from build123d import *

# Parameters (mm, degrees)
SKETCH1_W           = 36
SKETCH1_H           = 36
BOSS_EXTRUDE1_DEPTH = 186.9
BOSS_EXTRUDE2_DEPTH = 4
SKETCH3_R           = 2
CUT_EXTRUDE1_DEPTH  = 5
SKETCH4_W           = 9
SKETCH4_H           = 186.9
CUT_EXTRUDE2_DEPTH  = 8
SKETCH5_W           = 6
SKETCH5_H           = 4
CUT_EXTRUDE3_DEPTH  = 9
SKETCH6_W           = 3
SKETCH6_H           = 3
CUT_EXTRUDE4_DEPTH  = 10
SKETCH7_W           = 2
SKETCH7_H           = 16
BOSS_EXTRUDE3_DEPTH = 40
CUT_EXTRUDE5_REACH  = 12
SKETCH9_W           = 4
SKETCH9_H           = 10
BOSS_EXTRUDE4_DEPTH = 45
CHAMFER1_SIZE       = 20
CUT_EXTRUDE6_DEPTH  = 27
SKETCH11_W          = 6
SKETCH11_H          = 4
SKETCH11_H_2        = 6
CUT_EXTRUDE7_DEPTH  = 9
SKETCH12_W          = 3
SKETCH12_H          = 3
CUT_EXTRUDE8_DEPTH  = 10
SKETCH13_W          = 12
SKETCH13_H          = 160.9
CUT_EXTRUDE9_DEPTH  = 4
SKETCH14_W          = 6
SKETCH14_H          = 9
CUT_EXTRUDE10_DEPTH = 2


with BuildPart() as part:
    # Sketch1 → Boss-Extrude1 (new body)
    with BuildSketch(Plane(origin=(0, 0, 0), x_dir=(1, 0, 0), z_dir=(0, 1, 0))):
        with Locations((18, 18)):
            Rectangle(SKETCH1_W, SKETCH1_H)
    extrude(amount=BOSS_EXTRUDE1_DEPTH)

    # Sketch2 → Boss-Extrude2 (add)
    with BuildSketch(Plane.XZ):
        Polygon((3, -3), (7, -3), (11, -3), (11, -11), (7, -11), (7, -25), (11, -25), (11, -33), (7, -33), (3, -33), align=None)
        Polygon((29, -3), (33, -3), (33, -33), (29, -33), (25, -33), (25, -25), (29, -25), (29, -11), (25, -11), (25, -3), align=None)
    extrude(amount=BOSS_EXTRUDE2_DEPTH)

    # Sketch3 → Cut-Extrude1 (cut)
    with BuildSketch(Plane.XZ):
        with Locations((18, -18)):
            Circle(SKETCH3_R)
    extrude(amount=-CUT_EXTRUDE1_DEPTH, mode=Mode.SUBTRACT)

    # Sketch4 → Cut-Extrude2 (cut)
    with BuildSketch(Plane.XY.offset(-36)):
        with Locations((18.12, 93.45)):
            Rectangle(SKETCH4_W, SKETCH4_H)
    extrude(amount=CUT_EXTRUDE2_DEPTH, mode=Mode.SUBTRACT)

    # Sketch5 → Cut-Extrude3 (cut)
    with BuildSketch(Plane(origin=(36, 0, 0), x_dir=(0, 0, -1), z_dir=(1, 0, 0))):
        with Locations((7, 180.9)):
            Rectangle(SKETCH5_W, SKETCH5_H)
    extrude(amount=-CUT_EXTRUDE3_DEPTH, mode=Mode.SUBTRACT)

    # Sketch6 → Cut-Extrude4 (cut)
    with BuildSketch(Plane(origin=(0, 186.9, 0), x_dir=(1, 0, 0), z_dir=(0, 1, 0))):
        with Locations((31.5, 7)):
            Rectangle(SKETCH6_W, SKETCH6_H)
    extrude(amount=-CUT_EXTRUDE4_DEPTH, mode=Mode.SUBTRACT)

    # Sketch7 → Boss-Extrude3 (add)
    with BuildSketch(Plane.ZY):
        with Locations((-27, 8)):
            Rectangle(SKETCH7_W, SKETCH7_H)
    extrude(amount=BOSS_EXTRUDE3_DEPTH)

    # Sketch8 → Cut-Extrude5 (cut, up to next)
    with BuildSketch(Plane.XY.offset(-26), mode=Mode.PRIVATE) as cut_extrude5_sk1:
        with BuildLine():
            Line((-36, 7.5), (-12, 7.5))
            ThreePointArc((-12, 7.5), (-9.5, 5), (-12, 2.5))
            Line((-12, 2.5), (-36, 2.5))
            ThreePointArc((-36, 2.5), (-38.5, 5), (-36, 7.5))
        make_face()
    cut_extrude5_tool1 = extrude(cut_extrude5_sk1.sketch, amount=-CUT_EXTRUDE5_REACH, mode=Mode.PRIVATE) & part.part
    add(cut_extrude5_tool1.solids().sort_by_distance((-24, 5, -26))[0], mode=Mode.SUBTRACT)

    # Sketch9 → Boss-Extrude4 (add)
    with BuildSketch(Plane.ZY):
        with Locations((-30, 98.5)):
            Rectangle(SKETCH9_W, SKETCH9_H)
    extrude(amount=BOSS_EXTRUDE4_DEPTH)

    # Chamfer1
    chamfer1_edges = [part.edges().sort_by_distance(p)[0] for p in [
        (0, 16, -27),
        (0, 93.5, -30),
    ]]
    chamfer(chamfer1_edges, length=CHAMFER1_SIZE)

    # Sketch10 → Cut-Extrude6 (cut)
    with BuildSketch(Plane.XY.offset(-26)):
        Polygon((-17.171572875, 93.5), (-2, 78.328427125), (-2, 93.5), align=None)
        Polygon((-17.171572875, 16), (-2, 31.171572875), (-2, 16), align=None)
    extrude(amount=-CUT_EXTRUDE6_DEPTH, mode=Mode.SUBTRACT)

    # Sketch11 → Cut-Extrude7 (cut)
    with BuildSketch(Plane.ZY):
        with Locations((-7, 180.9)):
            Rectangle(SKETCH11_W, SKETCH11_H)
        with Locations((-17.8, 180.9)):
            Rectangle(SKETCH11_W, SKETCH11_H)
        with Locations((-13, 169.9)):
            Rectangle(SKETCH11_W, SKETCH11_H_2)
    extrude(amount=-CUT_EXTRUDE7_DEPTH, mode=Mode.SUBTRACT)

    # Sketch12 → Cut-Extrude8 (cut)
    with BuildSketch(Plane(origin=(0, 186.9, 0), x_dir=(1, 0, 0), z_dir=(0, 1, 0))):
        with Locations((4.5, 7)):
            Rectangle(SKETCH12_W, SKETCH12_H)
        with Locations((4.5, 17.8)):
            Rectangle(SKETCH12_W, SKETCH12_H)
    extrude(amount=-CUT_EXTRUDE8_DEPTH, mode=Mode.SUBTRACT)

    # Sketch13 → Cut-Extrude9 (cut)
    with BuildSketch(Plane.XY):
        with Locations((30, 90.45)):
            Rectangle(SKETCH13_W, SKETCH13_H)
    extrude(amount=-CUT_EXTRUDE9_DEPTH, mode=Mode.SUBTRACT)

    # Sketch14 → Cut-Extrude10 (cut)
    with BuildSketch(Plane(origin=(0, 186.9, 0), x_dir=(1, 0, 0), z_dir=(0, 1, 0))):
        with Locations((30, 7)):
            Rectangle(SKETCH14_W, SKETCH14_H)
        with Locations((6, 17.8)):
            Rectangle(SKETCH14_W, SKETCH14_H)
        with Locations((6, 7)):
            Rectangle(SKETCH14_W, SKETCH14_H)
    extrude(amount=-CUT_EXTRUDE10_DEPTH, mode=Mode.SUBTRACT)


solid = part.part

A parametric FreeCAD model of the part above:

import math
import FreeCAD as App
import Part
import Sketcher
Q = App.Units.Quantity


def edges_at(feature, points):
    """Names of the edges that pass closest to the given points."""
    edges = feature.Shape.Edges
    near = lambda p: min(range(len(edges)), key=lambda i: edges[i].distToShape(Part.Vertex(*p))[0])
    return sorted({f"Edge{near(p) + 1}" for p in points})


def add_polygon(sketch, points):
    """Adds a closed chain of lines whose ends are joined by coincident constraints."""
    first, n = sketch.GeometryCount, len(points)
    for a, b in zip(points, points[1:] + points[:1]):
        sketch.addGeometry(Part.LineSegment(App.Vector(*a, 0), App.Vector(*b, 0)), False)
    for i in range(n):
        sketch.addConstraint(Sketcher.Constraint("Coincident", first + i, 2, first + (i + 1) % n, 1))

doc = App.newDocument("Part")
params = doc.addObject("Spreadsheet::Sheet", "Params")
for row, (alias, value) in enumerate([
    ("sketch1_width", "36 mm"),
    ("pad1_length", "186.9 mm"),
    ("sketch2_width", "8 mm"),
    ("sketch2_width2", "4 mm"),
    ("sketch2_height", "30 mm"),
    ("pad2_length", "4 mm"),
    ("sketch3_diameter", "4 mm"),
    ("pocket1_length", "5 mm"),
    ("sketch4_width", "9 mm"),
    ("sketch4_height", "186.9 mm"),
    ("pocket2_length", "8 mm"),
    ("sketch5_width", "4 mm"),
    ("sketch5_height", "6 mm"),
    ("pocket3_length", "9 mm"),
    ("sketch6_width", "3 mm"),
    ("pocket4_length", "10 mm"),
    ("sketch7_width", "16 mm"),
    ("sketch7_height", "2 mm"),
    ("pad3_length", "40 mm"),
    ("sketch8_radius", "2.5 mm"),
    ("sketch8_width", "24 mm"),
    ("sketch9_width", "10 mm"),
    ("sketch9_height", "4 mm"),
    ("pad4_length", "45 mm"),
    ("chamfer_size", "20 mm"),
    ("pocket6_length", "27 mm"),
    ("sketch11_width", "4 mm"),
    ("sketch11_width2", "6 mm"),
    ("pocket7_length", "9 mm"),
    ("sketch12_width", "3 mm"),
    ("pocket8_length", "10 mm"),
    ("sketch13_width", "12 mm"),
    ("sketch13_height", "160.9 mm"),
    ("pocket9_length", "4 mm"),
    ("sketch14_width", "6 mm"),
    ("sketch14_height", "9 mm"),
    ("pocket10_length", "2 mm"),
], start=1):
    params.set(f"A{row}", alias)
    params.set(f"B{row}", "=" + value)
    params.setAlias(f"B{row}", alias)

body = doc.addObject("PartDesign::Body", "Body")

# Sketch on XZ plane
sketch1 = body.newObject("Sketcher::SketchObject", "Sketch")
sketch1.AttachmentSupport = (doc.getObject("XZ_Plane"), [""])
sketch1.MapMode = "FlatFace"
add_polygon(sketch1, [(0, -36), (0, 0), (36, 0), (36, -36)])  # lines 0-3
sketch1.addConstraint(Sketcher.Constraint("Vertical", 0))
sketch1.addConstraint(Sketcher.Constraint("Horizontal", 1))
sketch1.addConstraint(Sketcher.Constraint("Vertical", 2))
sketch1.addConstraint(Sketcher.Constraint("Horizontal", 3))
sketch1.addConstraint(Sketcher.Constraint("Coincident", 0, 2, -1, 1))
sketch1.addConstraint(Sketcher.Constraint("Equal", 3, 0))
sketch1.addConstraint(Sketcher.Constraint("DistanceX", 1, 1, 1, 2, Q("36 mm")))
sketch1.setExpression("Constraints[10]", "Params.sketch1_width")
pad1 = body.newObject("PartDesign::Pad", "Pad")
pad1.Profile = sketch1
pad1.setExpression("Length", "Params.pad1_length")
pad1.Reversed = True

# Sketch on XZ plane
sketch2 = body.newObject("Sketcher::SketchObject", "Sketch001")
sketch2.AttachmentSupport = (doc.getObject("XZ_Plane"), [""])
sketch2.MapMode = "FlatFace"
add_polygon(sketch2, [(11, -3), (3, -3), (3, -33), (11, -33), (11, -25), (7, -25), (7, -11), (11, -11)])  # lines 0-7
add_polygon(sketch2, [(33, -3), (25, -3), (25, -11), (29, -11), (29, -25), (25, -25), (25, -33), (33, -33)])  # lines 8-15
sketch2.addConstraint(Sketcher.Constraint("Horizontal", 0))
sketch2.addConstraint(Sketcher.Constraint("Vertical", 1))
sketch2.addConstraint(Sketcher.Constraint("Horizontal", 2))
sketch2.addConstraint(Sketcher.Constraint("Vertical", 3))
sketch2.addConstraint(Sketcher.Constraint("Horizontal", 4))
sketch2.addConstraint(Sketcher.Constraint("Vertical", 5))
sketch2.addConstraint(Sketcher.Constraint("Horizontal", 6))
sketch2.addConstraint(Sketcher.Constraint("Vertical", 7))
sketch2.addConstraint(Sketcher.Constraint("Horizontal", 8))
sketch2.addConstraint(Sketcher.Constraint("Vertical", 9))
sketch2.addConstraint(Sketcher.Constraint("Horizontal", 10))
sketch2.addConstraint(Sketcher.Constraint("Vertical", 11))
sketch2.addConstraint(Sketcher.Constraint("Horizontal", 12))
sketch2.addConstraint(Sketcher.Constraint("Vertical", 13))
sketch2.addConstraint(Sketcher.Constraint("Horizontal", 14))
sketch2.addConstraint(Sketcher.Constraint("Vertical", 15))
sketch2.addConstraint(Sketcher.Constraint("Horizontal", 7, 2, 8, 2))
sketch2.addConstraint(Sketcher.Constraint("Horizontal", 6, 2, 9, 2))
sketch2.addConstraint(Sketcher.Constraint("Horizontal", 4, 2, 11, 2))
sketch2.addConstraint(Sketcher.Constraint("Horizontal", 2, 2, 13, 2))
sketch2.addConstraint(Sketcher.Constraint("Vertical", 3, 2, 6, 2))
sketch2.addConstraint(Sketcher.Constraint("Vertical", 9, 2, 12, 2))
sketch2.addConstraint(Sketcher.Constraint("Equal", 2, 8))
sketch2.addConstraint(Sketcher.Constraint("Equal", 6, 10))
sketch2.addConstraint(Sketcher.Constraint("Equal", 14, 3))
sketch2.addConstraint(Sketcher.Constraint("Equal", 3, 7))
sketch2.addConstraint(Sketcher.Constraint("DistanceX", 0, 2, 0, 1, Q("8 mm")))
sketch2.addConstraint(Sketcher.Constraint("DistanceX", 4, 2, 4, 1, Q("4 mm")))
sketch2.addConstraint(Sketcher.Constraint("DistanceY", 1, 2, 1, 1, Q("30 mm")))
sketch2.addConstraint(Sketcher.Constraint("DistanceX", -1, 1, 0, 2, Q("3 mm")))
sketch2.addConstraint(Sketcher.Constraint("DistanceY", 0, 2, -1, 1, Q("3 mm")))
sketch2.addConstraint(Sketcher.Constraint("DistanceX", -1, 1, 8, 2, Q("25 mm")))
sketch2.setExpression("Constraints[42]", "Params.sketch2_width")
sketch2.setExpression("Constraints[43]", "Params.sketch2_width2")
sketch2.setExpression("Constraints[44]", "Params.sketch2_height")
pad2 = body.newObject("PartDesign::Pad", "Pad001")
pad2.Profile = sketch2
pad2.setExpression("Length", "Params.pad2_length")

# Sketch on XZ plane
sketch3 = body.newObject("Sketcher::SketchObject", "Sketch002")
sketch3.AttachmentSupport = (doc.getObject("XZ_Plane"), [""])
sketch3.MapMode = "FlatFace"
sketch3.addGeometry(Part.Circle(App.Vector(18, -18, 0), App.Vector(0, 0, 1), 2), False)
sketch3.addConstraint(Sketcher.Constraint("Diameter", 0, Q("4 mm")))
sketch3.addConstraint(Sketcher.Constraint("DistanceX", -1, 1, 0, 3, Q("18 mm")))
sketch3.addConstraint(Sketcher.Constraint("DistanceY", 0, 3, -1, 1, Q("18 mm")))
sketch3.setExpression("Constraints[0]", "Params.sketch3_diameter")
pocket1 = body.newObject("PartDesign::Pocket", "Pocket")
pocket1.Profile = sketch3
pocket1.setExpression("Length", "Params.pocket1_length")

# Sketch on XY plane
sketch4 = body.newObject("Sketcher::SketchObject", "Sketch003")
sketch4.AttachmentSupport = (doc.getObject("XY_Plane"), [""])
sketch4.MapMode = "FlatFace"
sketch4.AttachmentOffset = App.Placement(App.Vector(0, 0, -36), App.Rotation())
add_polygon(sketch4, [(14, 187), (14, 0), (23, 0), (23, 187)])  # lines 0-3
sketch4.addConstraint(Sketcher.Constraint("Vertical", 0))
sketch4.addConstraint(Sketcher.Constraint("Horizontal", 1))
sketch4.addConstraint(Sketcher.Constraint("Vertical", 2))
sketch4.addConstraint(Sketcher.Constraint("Horizontal", 3))
sketch4.addConstraint(Sketcher.Constraint("PointOnObject", 0, 2, -1))
sketch4.addConstraint(Sketcher.Constraint("DistanceX", 1, 1, 1, 2, Q("9 mm")))
sketch4.addConstraint(Sketcher.Constraint("DistanceY", 0, 2, 0, 1, Q("186.9 mm")))
sketch4.addConstraint(Sketcher.Constraint("DistanceX", -1, 1, 0, 2, Q("13.62 mm")))
sketch4.setExpression("Constraints[9]", "Params.sketch4_width")
sketch4.setExpression("Constraints[10]", "Params.sketch4_height")
pocket2 = body.newObject("PartDesign::Pocket", "Pocket001")
pocket2.Profile = sketch4
pocket2.setExpression("Length", "Params.pocket2_length")
pocket2.Reversed = True

# Sketch on YZ plane
sketch5 = body.newObject("Sketcher::SketchObject", "Sketch004")
sketch5.AttachmentSupport = (doc.getObject("YZ_Plane"), [""])
sketch5.MapMode = "FlatFace"
sketch5.AttachmentOffset = App.Placement(App.Vector(0, 0, 36), App.Rotation())
add_polygon(sketch5, [(182.9, -4), (178.9, -4), (178.9, -10), (182.9, -10)])  # lines 0-3
sketch5.addConstraint(Sketcher.Constraint("Horizontal", 0))
sketch5.addConstraint(Sketcher.Constraint("Vertical", 1))
sketch5.addConstraint(Sketcher.Constraint("Horizontal", 2))
sketch5.addConstraint(Sketcher.Constraint("Vertical", 3))
sketch5.addConstraint(Sketcher.Constraint("DistanceX", 0, 2, 0, 1, Q("4 mm")))
sketch5.addConstraint(Sketcher.Constraint("DistanceY", 1, 2, 1, 1, Q("6 mm")))
sketch5.addConstraint(Sketcher.Constraint("DistanceY", 0, 2, -1, 1, Q("4 mm")))
sketch5.addConstraint(Sketcher.Constraint("DistanceX", -1, 1, 0, 2, Q("178.9 mm")))
sketch5.setExpression("Constraints[8]", "Params.sketch5_width")
sketch5.setExpression("Constraints[9]", "Params.sketch5_height")
pocket3 = body.newObject("PartDesign::Pocket", "Pocket002")
pocket3.Profile = sketch5
pocket3.setExpression("Length", "Params.pocket3_length")

# Sketch on XZ plane
sketch6 = body.newObject("Sketcher::SketchObject", "Sketch005")
sketch6.AttachmentSupport = (doc.getObject("XZ_Plane"), [""])
sketch6.MapMode = "FlatFace"
sketch6.AttachmentOffset = App.Placement(App.Vector(0, 0, -186.9), App.Rotation())
add_polygon(sketch6, [(30, -8.5), (30, -5.5), (33, -5.5), (33, -8.5)])  # lines 0-3
sketch6.addConstraint(Sketcher.Constraint("Vertical", 0))
sketch6.addConstraint(Sketcher.Constraint("Horizontal", 1))
sketch6.addConstraint(Sketcher.Constraint("Vertical", 2))
sketch6.addConstraint(Sketcher.Constraint("Horizontal", 3))
sketch6.addConstraint(Sketcher.Constraint("Equal", 3, 0))
sketch6.addConstraint(Sketcher.Constraint("DistanceX", 1, 1, 1, 2, Q("3 mm")))
sketch6.addConstraint(Sketcher.Constraint("DistanceX", -1, 1, 0, 2, Q("30 mm")))
sketch6.addConstraint(Sketcher.Constraint("DistanceY", 0, 2, -1, 1, Q("5.5 mm")))
sketch6.setExpression("Constraints[9]", "Params.sketch6_width")
pocket4 = body.newObject("PartDesign::Pocket", "Pocket003")
pocket4.Profile = sketch6
pocket4.setExpression("Length", "Params.pocket4_length")
pocket4.Reversed = True

# Sketch on YZ plane
sketch7 = body.newObject("Sketcher::SketchObject", "Sketch006")
sketch7.AttachmentSupport = (doc.getObject("YZ_Plane"), [""])
sketch7.MapMode = "FlatFace"
add_polygon(sketch7, [(16, -28), (0, -28), (0, -26), (16, -26)])  # lines 0-3
sketch7.addConstraint(Sketcher.Constraint("Horizontal", 0))
sketch7.addConstraint(Sketcher.Constraint("Vertical", 1))
sketch7.addConstraint(Sketcher.Constraint("Horizontal", 2))
sketch7.addConstraint(Sketcher.Constraint("Vertical", 3))
sketch7.addConstraint(Sketcher.Constraint("PointOnObject", 0, 2, -2))
sketch7.addConstraint(Sketcher.Constraint("DistanceX", 0, 2, 0, 1, Q("16 mm")))
sketch7.addConstraint(Sketcher.Constraint("DistanceY", 1, 1, 1, 2, Q("2 mm")))
sketch7.addConstraint(Sketcher.Constraint("DistanceY", 0, 2, -1, 1, Q("28 mm")))
sketch7.setExpression("Constraints[9]", "Params.sketch7_width")
sketch7.setExpression("Constraints[10]", "Params.sketch7_height")
pad3 = body.newObject("PartDesign::Pad", "Pad002")
pad3.Profile = sketch7
pad3.setExpression("Length", "Params.pad3_length")
pad3.Reversed = True

# Sketch on XY plane
sketch8 = body.newObject("Sketcher::SketchObject", "Sketch007")
sketch8.AttachmentSupport = (doc.getObject("XY_Plane"), [""])
sketch8.MapMode = "FlatFace"
sketch8.AttachmentOffset = App.Placement(App.Vector(0, 0, -26), App.Rotation())
sketch8.addGeometry(Part.LineSegment(App.Vector(-12, 7.5, 0), App.Vector(-36, 7.5, 0)), False)
sketch8.addGeometry(Part.ArcOfCircle(Part.Circle(App.Vector(-36, 5, 0), App.Vector(0, 0, 1), 2.5), math.radians(90), math.radians(270)), False)
sketch8.addGeometry(Part.LineSegment(App.Vector(-36, 2.5, 0), App.Vector(-12, 2.5, 0)), False)
sketch8.addGeometry(Part.ArcOfCircle(Part.Circle(App.Vector(-12, 5, 0), App.Vector(0, 0, 1), 2.5), math.radians(-90), math.radians(90)), False)
sketch8.addConstraint(Sketcher.Constraint("Tangent", 0, 2, 1, 1))
sketch8.addConstraint(Sketcher.Constraint("Tangent", 1, 2, 2, 1))
sketch8.addConstraint(Sketcher.Constraint("Tangent", 2, 2, 3, 1))
sketch8.addConstraint(Sketcher.Constraint("Tangent", 3, 2, 0, 1))
sketch8.addConstraint(Sketcher.Constraint("Horizontal", 0))
sketch8.addConstraint(Sketcher.Constraint("Horizontal", 2))
sketch8.addConstraint(Sketcher.Constraint("Radius", 1, Q("2.5 mm")))
sketch8.addConstraint(Sketcher.Constraint("DistanceX", 0, 2, 0, 1, Q("24 mm")))
sketch8.addConstraint(Sketcher.Constraint("DistanceX", 1, 3, -1, 1, Q("36 mm")))
sketch8.addConstraint(Sketcher.Constraint("DistanceY", -1, 1, 1, 3, Q("5 mm")))
sketch8.setExpression("Constraints[6]", "Params.sketch8_radius")
sketch8.setExpression("Constraints[7]", "Params.sketch8_width")
pocket5 = body.newObject("PartDesign::Pocket", "Pocket004")
pocket5.Profile = sketch8
pocket5.Type = "UpToFirst"

# Sketch on YZ plane
sketch9 = body.newObject("Sketcher::SketchObject", "Sketch008")
sketch9.AttachmentSupport = (doc.getObject("YZ_Plane"), [""])
sketch9.MapMode = "FlatFace"
add_polygon(sketch9, [(103.5, -32), (93.5, -32), (93.5, -28), (103.5, -28)])  # lines 0-3
sketch9.addConstraint(Sketcher.Constraint("Horizontal", 0))
sketch9.addConstraint(Sketcher.Constraint("Vertical", 1))
sketch9.addConstraint(Sketcher.Constraint("Horizontal", 2))
sketch9.addConstraint(Sketcher.Constraint("Vertical", 3))
sketch9.addConstraint(Sketcher.Constraint("DistanceX", 0, 2, 0, 1, Q("10 mm")))
sketch9.addConstraint(Sketcher.Constraint("DistanceY", 1, 1, 1, 2, Q("4 mm")))
sketch9.addConstraint(Sketcher.Constraint("DistanceY", 0, 2, -1, 1, Q("32 mm")))
sketch9.addConstraint(Sketcher.Constraint("DistanceX", -1, 1, 0, 2, Q("93.5 mm")))
sketch9.setExpression("Constraints[8]", "Params.sketch9_width")
sketch9.setExpression("Constraints[9]", "Params.sketch9_height")
pad4 = body.newObject("PartDesign::Pad", "Pad003")
pad4.Profile = sketch9
pad4.setExpression("Length", "Params.pad4_length")
pad4.Reversed = True
doc.recompute()

chamfer = body.newObject("PartDesign::Chamfer", "Chamfer")
chamfer.Base = (pad4, edges_at(pad4, [(0, 16, -27), (0, 93.5, -30)]))
chamfer.setExpression("Size", "Params.chamfer_size")

# Sketch on XY plane
sketch10 = body.newObject("Sketcher::SketchObject", "Sketch009")
sketch10.AttachmentSupport = (doc.getObject("XY_Plane"), [""])
sketch10.MapMode = "FlatFace"
sketch10.AttachmentOffset = App.Placement(App.Vector(0, 0, -26), App.Rotation())
add_polygon(sketch10, [(-17, 94), (-2, 78), (-2, 94)])  # lines 0-2
add_polygon(sketch10, [(-2, 31), (-17, 16), (-2, 16)])  # lines 3-5
sketch10.addConstraint(Sketcher.Constraint("Vertical", 1))
sketch10.addConstraint(Sketcher.Constraint("Horizontal", 2))
sketch10.addConstraint(Sketcher.Constraint("Horizontal", 4))
sketch10.addConstraint(Sketcher.Constraint("Vertical", 5))
sketch10.addConstraint(Sketcher.Constraint("Perpendicular", 0, 3))
sketch10.addConstraint(Sketcher.Constraint("Vertical", 2, 2, 3, 2))
sketch10.addConstraint(Sketcher.Constraint("Vertical", 1, 2, 4, 2))
sketch10.addConstraint(Sketcher.Constraint("Equal", 4, 1))
sketch10.addConstraint(Sketcher.Constraint("DistanceX", 0, 2, -1, 1, Q("2 mm")))
sketch10.addConstraint(Sketcher.Constraint("DistanceY", -1, 1, 3, 2, Q("16 mm")))
sketch10.addConstraint(Sketcher.Constraint("DistanceY", -1, 1, 1, 2, Q("93.5 mm")))
sketch10.addConstraint(Sketcher.Constraint("DistanceX", 2, 2, 2, 1, Q("15.171573 mm")))
pocket6 = body.newObject("PartDesign::Pocket", "Pocket005")
pocket6.Profile = sketch10
pocket6.setExpression("Length", "Params.pocket6_length")

# Sketch on YZ plane
sketch11 = body.newObject("Sketcher::SketchObject", "Sketch010")
sketch11.AttachmentSupport = (doc.getObject("YZ_Plane"), [""])
sketch11.MapMode = "FlatFace"
add_polygon(sketch11, [(182.9, -10), (178.9, -10), (178.9, -4), (182.9, -4)])  # lines 0-3
add_polygon(sketch11, [(182.9, -20.8), (178.9, -20.8), (178.9, -14.8), (182.9, -14.8)])  # lines 4-7
add_polygon(sketch11, [(172.9, -16), (166.9, -16), (166.9, -10), (172.9, -10)])  # lines 8-11
sketch11.addConstraint(Sketcher.Constraint("Horizontal", 0))
sketch11.addConstraint(Sketcher.Constraint("Vertical", 1))
sketch11.addConstraint(Sketcher.Constraint("Horizontal", 2))
sketch11.addConstraint(Sketcher.Constraint("Vertical", 3))
sketch11.addConstraint(Sketcher.Constraint("Horizontal", 4))
sketch11.addConstraint(Sketcher.Constraint("Vertical", 5))
sketch11.addConstraint(Sketcher.Constraint("Horizontal", 6))
sketch11.addConstraint(Sketcher.Constraint("Vertical", 7))
sketch11.addConstraint(Sketcher.Constraint("Horizontal", 8))
sketch11.addConstraint(Sketcher.Constraint("Vertical", 9))
sketch11.addConstraint(Sketcher.Constraint("Horizontal", 10))
sketch11.addConstraint(Sketcher.Constraint("Vertical", 11))
sketch11.addConstraint(Sketcher.Constraint("Horizontal", 3, 2, 9, 2))
sketch11.addConstraint(Sketcher.Constraint("Vertical", 1, 2, 4, 2))
sketch11.addConstraint(Sketcher.Constraint("Vertical", 3, 2, 6, 2))
sketch11.addConstraint(Sketcher.Constraint("Equal", 10, 1))
sketch11.addConstraint(Sketcher.Constraint("Equal", 3, 5))
sketch11.addConstraint(Sketcher.Constraint("Equal", 7, 9))
sketch11.addConstraint(Sketcher.Constraint("DistanceX", 0, 2, 0, 1, Q("4 mm")))
sketch11.addConstraint(Sketcher.Constraint("DistanceX", 8, 2, 8, 1, Q("6 mm")))
sketch11.addConstraint(Sketcher.Constraint("DistanceY", 0, 2, -1, 1, Q("10 mm")))
sketch11.addConstraint(Sketcher.Constraint("DistanceX", 8, 2, 5, 2, Q("12 mm")))
sketch11.addConstraint(Sketcher.Constraint("DistanceX", -1, 1, 0, 2, Q("178.9 mm")))
sketch11.addConstraint(Sketcher.Constraint("DistanceY", 4, 2, -1, 1, Q("20.8 mm")))
sketch11.setExpression("Constraints[30]", "Params.sketch11_width")
sketch11.setExpression("Constraints[31]", "Params.sketch11_width2")
pocket7 = body.newObject("PartDesign::Pocket", "Pocket006")
pocket7.Profile = sketch11
pocket7.setExpression("Length", "Params.pocket7_length")
pocket7.Reversed = True

# Sketch on XZ plane
sketch12 = body.newObject("Sketcher::SketchObject", "Sketch011")
sketch12.AttachmentSupport = (doc.getObject("XZ_Plane"), [""])
sketch12.MapMode = "FlatFace"
sketch12.AttachmentOffset = App.Placement(App.Vector(0, 0, -186.9), App.Rotation())
add_polygon(sketch12, [(3, -8.5), (3, -5.5), (6, -5.5), (6, -8.5)])  # lines 0-3
add_polygon(sketch12, [(3, -19.3), (3, -16.3), (6, -16.3), (6, -19.3)])  # lines 4-7
sketch12.addConstraint(Sketcher.Constraint("Vertical", 0))
sketch12.addConstraint(Sketcher.Constraint("Horizontal", 1))
sketch12.addConstraint(Sketcher.Constraint("Vertical", 2))
sketch12.addConstraint(Sketcher.Constraint("Horizontal", 3))
sketch12.addConstraint(Sketcher.Constraint("Vertical", 4))
sketch12.addConstraint(Sketcher.Constraint("Horizontal", 5))
sketch12.addConstraint(Sketcher.Constraint("Vertical", 6))
sketch12.addConstraint(Sketcher.Constraint("Horizontal", 7))
sketch12.addConstraint(Sketcher.Constraint("Vertical", 3, 2, 4, 2))
sketch12.addConstraint(Sketcher.Constraint("Vertical", 2, 2, 5, 2))
sketch12.addConstraint(Sketcher.Constraint("Equal", 7, 0))
sketch12.addConstraint(Sketcher.Constraint("Equal", 2, 4))
sketch12.addConstraint(Sketcher.Constraint("DistanceX", 1, 1, 1, 2, Q("3 mm")))
sketch12.addConstraint(Sketcher.Constraint("DistanceX", -1, 1, 0, 2, Q("3 mm")))
sketch12.addConstraint(Sketcher.Constraint("DistanceY", 0, 2, -1, 1, Q("5.5 mm")))
sketch12.addConstraint(Sketcher.Constraint("DistanceY", 4, 2, -1, 1, Q("16.3 mm")))
sketch12.setExpression("Constraints[20]", "Params.sketch12_width")
pocket8 = body.newObject("PartDesign::Pocket", "Pocket007")
pocket8.Profile = sketch12
pocket8.setExpression("Length", "Params.pocket8_length")
pocket8.Reversed = True

# Sketch on XY plane
sketch13 = body.newObject("Sketcher::SketchObject", "Sketch012")
sketch13.AttachmentSupport = (doc.getObject("XY_Plane"), [""])
sketch13.MapMode = "FlatFace"
add_polygon(sketch13, [(24, 171), (24, 10), (36, 10), (36, 171)])  # lines 0-3
sketch13.addConstraint(Sketcher.Constraint("Vertical", 0))
sketch13.addConstraint(Sketcher.Constraint("Horizontal", 1))
sketch13.addConstraint(Sketcher.Constraint("Vertical", 2))
sketch13.addConstraint(Sketcher.Constraint("Horizontal", 3))
sketch13.addConstraint(Sketcher.Constraint("DistanceX", 1, 1, 1, 2, Q("12 mm")))
sketch13.addConstraint(Sketcher.Constraint("DistanceY", 0, 2, 0, 1, Q("160.9 mm")))
sketch13.addConstraint(Sketcher.Constraint("DistanceX", -1, 1, 0, 2, Q("24 mm")))
sketch13.addConstraint(Sketcher.Constraint("DistanceY", -1, 1, 0, 2, Q("10 mm")))
sketch13.setExpression("Constraints[8]", "Params.sketch13_width")
sketch13.setExpression("Constraints[9]", "Params.sketch13_height")
pocket9 = body.newObject("PartDesign::Pocket", "Pocket008")
pocket9.Profile = sketch13
pocket9.setExpression("Length", "Params.pocket9_length")

# Sketch on XZ plane
sketch14 = body.newObject("Sketcher::SketchObject", "Sketch013")
sketch14.AttachmentSupport = (doc.getObject("XZ_Plane"), [""])
sketch14.MapMode = "FlatFace"
sketch14.AttachmentOffset = App.Placement(App.Vector(0, 0, -186.9), App.Rotation())
add_polygon(sketch14, [(27, -12), (27, -2), (33, -2), (33, -12)])  # lines 0-3
add_polygon(sketch14, [(3, -22), (3, -13), (9, -13), (9, -22)])  # lines 4-7
add_polygon(sketch14, [(3, -12), (3, -2), (9, -2), (9, -12)])  # lines 8-11
sketch14.addConstraint(Sketcher.Constraint("Vertical", 0))
sketch14.addConstraint(Sketcher.Constraint("Horizontal", 1))
sketch14.addConstraint(Sketcher.Constraint("Vertical", 2))
sketch14.addConstraint(Sketcher.Constraint("Horizontal", 3))
sketch14.addConstraint(Sketcher.Constraint("Vertical", 4))
sketch14.addConstraint(Sketcher.Constraint("Horizontal", 5))
sketch14.addConstraint(Sketcher.Constraint("Vertical", 6))
sketch14.addConstraint(Sketcher.Constraint("Horizontal", 7))
sketch14.addConstraint(Sketcher.Constraint("Vertical", 8))
sketch14.addConstraint(Sketcher.Constraint("Horizontal", 9))
sketch14.addConstraint(Sketcher.Constraint("Vertical", 10))
sketch14.addConstraint(Sketcher.Constraint("Horizontal", 11))
sketch14.addConstraint(Sketcher.Constraint("Horizontal", 1, 2, 8, 2))
sketch14.addConstraint(Sketcher.Constraint("Horizontal", 3, 2, 10, 2))
sketch14.addConstraint(Sketcher.Constraint("Vertical", 7, 2, 8, 2))
sketch14.addConstraint(Sketcher.Constraint("Vertical", 6, 2, 9, 2))
sketch14.addConstraint(Sketcher.Constraint("Equal", 3, 5))
sketch14.addConstraint(Sketcher.Constraint("Equal", 2, 4))
sketch14.addConstraint(Sketcher.Constraint("DistanceX", 1, 1, 1, 2, Q("6 mm")))
sketch14.addConstraint(Sketcher.Constraint("DistanceY", 0, 1, 0, 2, Q("9 mm")))
sketch14.addConstraint(Sketcher.Constraint("DistanceX", -1, 1, 0, 2, Q("27 mm")))
sketch14.addConstraint(Sketcher.Constraint("DistanceX", -1, 1, 4, 2, Q("3 mm")))
sketch14.addConstraint(Sketcher.Constraint("DistanceY", 0, 2, -1, 1, Q("2.5 mm")))
sketch14.addConstraint(Sketcher.Constraint("DistanceY", 4, 2, -1, 1, Q("13.3 mm")))
sketch14.setExpression("Constraints[30]", "Params.sketch14_width")
sketch14.setExpression("Constraints[31]", "Params.sketch14_height")
pocket10 = body.newObject("PartDesign::Pocket", "Pocket009")
pocket10.Profile = sketch14
pocket10.setExpression("Length", "Params.pocket10_length")
pocket10.Reversed = True

doc.recompute()
